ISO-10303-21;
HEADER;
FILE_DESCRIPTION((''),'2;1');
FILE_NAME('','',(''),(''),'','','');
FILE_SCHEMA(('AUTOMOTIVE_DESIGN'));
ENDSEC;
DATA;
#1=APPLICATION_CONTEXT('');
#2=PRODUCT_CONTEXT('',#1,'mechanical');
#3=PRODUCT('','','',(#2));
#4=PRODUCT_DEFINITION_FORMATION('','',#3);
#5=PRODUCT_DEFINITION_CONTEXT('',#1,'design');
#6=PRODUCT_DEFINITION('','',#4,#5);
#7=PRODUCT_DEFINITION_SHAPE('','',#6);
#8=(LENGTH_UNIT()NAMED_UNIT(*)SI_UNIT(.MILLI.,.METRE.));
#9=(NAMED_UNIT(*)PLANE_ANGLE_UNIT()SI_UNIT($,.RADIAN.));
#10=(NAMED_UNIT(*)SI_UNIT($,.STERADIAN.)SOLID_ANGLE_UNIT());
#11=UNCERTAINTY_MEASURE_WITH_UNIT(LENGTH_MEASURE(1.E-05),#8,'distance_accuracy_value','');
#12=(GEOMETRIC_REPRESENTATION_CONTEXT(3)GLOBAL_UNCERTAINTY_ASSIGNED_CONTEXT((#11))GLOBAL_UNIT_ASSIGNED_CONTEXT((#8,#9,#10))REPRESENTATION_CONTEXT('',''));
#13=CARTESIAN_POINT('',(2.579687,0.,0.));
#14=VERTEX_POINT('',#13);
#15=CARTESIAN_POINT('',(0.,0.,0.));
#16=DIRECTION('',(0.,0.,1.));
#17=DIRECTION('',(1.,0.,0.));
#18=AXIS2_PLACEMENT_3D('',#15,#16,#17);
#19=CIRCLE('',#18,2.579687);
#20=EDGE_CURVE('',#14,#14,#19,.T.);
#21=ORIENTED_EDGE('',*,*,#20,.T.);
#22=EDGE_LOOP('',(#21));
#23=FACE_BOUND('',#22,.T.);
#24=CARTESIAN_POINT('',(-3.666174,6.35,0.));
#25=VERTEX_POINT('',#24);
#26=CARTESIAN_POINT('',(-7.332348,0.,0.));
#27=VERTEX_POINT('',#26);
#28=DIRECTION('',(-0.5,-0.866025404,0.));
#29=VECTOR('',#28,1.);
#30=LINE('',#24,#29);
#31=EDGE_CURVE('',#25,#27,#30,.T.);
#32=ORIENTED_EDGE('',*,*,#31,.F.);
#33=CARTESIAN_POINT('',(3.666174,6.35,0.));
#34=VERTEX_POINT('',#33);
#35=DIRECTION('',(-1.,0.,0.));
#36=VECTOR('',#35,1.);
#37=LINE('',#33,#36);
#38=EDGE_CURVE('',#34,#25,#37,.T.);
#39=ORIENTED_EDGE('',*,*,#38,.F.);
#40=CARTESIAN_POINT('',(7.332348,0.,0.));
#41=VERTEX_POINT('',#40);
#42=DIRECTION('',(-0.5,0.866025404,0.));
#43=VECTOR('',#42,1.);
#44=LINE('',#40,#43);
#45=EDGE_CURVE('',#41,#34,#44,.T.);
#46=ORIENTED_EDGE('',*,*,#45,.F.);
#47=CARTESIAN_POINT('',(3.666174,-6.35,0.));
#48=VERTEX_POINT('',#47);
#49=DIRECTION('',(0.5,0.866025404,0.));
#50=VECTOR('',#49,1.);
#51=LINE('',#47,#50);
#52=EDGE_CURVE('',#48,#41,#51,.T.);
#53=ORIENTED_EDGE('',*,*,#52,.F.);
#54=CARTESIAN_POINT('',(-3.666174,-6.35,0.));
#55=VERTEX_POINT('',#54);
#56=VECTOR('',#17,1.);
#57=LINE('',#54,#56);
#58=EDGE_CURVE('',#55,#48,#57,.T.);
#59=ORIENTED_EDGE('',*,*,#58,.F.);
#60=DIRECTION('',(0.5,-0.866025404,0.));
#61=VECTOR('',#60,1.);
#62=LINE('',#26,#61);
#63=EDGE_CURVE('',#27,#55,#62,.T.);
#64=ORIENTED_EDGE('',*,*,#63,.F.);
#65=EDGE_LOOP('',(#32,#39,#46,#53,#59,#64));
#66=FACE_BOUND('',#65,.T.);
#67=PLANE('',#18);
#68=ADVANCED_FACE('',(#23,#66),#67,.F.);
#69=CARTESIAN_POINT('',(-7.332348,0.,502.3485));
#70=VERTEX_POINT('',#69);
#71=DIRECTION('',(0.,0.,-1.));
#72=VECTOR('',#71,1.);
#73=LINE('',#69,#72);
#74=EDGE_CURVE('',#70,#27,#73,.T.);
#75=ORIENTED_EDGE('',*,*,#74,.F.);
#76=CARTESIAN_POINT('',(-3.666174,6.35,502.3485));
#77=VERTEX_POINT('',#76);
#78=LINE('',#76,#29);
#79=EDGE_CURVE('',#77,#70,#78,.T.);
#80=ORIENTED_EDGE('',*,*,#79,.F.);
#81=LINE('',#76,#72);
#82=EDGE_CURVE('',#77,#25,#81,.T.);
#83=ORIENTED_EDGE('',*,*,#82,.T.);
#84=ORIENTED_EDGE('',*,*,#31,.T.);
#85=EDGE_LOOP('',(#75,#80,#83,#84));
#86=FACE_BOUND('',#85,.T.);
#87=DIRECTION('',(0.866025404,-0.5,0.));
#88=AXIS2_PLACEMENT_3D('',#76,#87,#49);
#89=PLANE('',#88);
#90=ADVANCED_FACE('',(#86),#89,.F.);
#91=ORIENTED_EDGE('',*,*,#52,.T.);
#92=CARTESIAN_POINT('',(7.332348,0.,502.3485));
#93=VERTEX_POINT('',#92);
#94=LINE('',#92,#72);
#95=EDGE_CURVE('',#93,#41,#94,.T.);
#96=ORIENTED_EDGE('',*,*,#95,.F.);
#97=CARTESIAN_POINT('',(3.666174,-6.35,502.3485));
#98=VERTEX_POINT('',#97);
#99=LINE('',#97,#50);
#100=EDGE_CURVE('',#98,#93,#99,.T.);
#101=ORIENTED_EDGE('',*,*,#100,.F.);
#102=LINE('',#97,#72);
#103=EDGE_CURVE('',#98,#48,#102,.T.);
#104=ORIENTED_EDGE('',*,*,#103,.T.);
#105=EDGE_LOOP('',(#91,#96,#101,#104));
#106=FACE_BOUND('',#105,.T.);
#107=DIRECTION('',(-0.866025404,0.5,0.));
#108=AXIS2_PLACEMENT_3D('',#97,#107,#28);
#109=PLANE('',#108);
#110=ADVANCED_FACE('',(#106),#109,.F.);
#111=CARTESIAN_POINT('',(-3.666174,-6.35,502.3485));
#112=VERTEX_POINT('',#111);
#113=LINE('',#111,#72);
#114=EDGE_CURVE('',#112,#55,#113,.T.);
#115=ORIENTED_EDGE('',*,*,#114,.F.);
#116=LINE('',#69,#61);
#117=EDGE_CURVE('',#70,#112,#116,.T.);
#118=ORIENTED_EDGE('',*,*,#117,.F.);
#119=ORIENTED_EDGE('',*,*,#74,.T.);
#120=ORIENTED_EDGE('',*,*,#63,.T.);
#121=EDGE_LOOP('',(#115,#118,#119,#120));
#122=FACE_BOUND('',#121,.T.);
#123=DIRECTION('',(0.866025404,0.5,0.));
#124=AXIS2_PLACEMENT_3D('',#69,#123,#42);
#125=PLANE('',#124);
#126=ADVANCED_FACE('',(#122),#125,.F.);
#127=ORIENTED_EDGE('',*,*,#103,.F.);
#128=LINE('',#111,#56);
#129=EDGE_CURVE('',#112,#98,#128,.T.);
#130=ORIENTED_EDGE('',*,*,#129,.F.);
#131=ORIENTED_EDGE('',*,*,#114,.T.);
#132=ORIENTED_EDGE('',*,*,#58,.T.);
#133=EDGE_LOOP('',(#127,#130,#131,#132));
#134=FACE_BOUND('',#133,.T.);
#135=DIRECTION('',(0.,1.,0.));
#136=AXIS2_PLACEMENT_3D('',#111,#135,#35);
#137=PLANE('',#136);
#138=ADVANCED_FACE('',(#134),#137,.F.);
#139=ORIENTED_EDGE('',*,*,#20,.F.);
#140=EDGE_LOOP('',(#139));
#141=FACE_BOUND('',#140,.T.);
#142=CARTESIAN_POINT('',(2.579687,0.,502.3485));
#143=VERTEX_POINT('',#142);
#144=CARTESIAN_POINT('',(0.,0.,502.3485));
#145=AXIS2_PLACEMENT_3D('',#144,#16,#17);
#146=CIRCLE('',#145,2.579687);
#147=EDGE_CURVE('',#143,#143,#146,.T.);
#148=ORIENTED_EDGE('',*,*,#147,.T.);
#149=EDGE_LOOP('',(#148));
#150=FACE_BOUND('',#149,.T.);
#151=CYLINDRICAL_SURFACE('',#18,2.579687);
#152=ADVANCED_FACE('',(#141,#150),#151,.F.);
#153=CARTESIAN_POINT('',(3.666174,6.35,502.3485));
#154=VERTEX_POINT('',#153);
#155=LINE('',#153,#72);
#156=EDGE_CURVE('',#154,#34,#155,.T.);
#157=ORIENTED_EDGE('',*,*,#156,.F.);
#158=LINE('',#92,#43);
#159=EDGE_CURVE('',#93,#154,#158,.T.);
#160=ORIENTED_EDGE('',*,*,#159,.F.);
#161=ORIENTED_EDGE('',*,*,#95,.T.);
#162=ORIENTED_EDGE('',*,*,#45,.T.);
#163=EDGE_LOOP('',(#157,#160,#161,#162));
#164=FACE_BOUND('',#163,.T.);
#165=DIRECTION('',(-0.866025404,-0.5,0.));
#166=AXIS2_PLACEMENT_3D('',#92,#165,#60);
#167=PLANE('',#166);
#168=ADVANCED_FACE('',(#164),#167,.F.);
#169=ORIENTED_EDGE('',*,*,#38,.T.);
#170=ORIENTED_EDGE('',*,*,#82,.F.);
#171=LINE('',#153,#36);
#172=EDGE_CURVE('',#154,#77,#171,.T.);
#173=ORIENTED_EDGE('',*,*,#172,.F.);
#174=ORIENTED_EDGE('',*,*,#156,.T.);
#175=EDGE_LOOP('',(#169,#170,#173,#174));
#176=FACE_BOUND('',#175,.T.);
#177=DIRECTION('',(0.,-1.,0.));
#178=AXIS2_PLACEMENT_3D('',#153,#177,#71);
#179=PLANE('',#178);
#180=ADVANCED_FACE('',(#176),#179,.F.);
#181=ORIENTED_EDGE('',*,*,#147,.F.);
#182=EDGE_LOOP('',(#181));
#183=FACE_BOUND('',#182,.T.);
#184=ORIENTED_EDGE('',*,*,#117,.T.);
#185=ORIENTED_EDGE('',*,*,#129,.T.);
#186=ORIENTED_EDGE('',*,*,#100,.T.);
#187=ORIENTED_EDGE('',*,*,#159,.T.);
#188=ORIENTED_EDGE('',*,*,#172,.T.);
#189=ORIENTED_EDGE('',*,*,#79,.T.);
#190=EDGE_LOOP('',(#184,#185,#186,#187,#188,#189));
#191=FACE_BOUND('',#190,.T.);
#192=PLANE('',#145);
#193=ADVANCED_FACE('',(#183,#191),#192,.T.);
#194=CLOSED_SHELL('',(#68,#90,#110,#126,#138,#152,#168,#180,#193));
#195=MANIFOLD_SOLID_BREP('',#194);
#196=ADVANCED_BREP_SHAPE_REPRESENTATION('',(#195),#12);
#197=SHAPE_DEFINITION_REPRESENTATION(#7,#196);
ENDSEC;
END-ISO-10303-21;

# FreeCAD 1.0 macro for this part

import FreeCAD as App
import Part
import Sketcher
Q = App.Units.Quantity


def add_polygon(sketch, points):
    """Adds a closed chain of lines whose ends are joined by coincident constraints."""
    first, n = sketch.GeometryCount, len(points)
    for a, b in zip(points, points[1:] + points[:1]):
        sketch.addGeometry(Part.LineSegment(App.Vector(*a, 0), App.Vector(*b, 0)), False)
    for i in range(n):
        sketch.addConstraint(Sketcher.Constraint("Coincident", first + i, 2, first + (i + 1) % n, 1))

doc = App.newDocument("Part")
body = doc.addObject("PartDesign::Body", "Body")

# Sketch on XY plane
sketch1 = body.newObject("Sketcher::SketchObject", "Sketch")
sketch1.AttachmentSupport = (doc.getObject("XY_Plane"), [""])
sketch1.MapMode = "FlatFace"
add_polygon(sketch1, [(7, 0), (4, 6), (-4, 6), (-7, 0), (-4, -6), (4, -6)])  # lines 0-5
sketch1.addConstraint([
    Sketcher.Constraint("Horizontal", 1),
    Sketcher.Constraint("Horizontal", 4),
    Sketcher.Constraint("Symmetric", 0, 2, 3, 2, -1, 1),
    Sketcher.Constraint("Symmetric", 2, 2, 5, 2, -1, 1),
    Sketcher.Constraint("PointOnObject", 2, 2, -1),
    Sketcher.Constraint("Parallel", 2, 5),
    Sketcher.Constraint("Vertical", 1, 2, 3, 2),
    Sketcher.Constraint("Angle", 0, Q("120 deg")),
    Sketcher.Constraint("DistanceY", 3, 2, 1, 2, Q("0.5 in")),
    Sketcher.Constraint("DistanceX", 1, 2, 1, 1, 7.332348),
])
pad1 = body.newObject("PartDesign::Pad", "Pad")
pad1.Profile = sketch1
pad1.Length = Q("19.7775 in")

# Sketch on XY plane
sketch2 = body.newObject("Sketcher::SketchObject", "Sketch001")
sketch2.AttachmentSupport = (doc.getObject("XY_Plane"), [""])
sketch2.MapMode = "FlatFace"
sketch2.AttachmentOffset = App.Placement(App.Vector(0, 0, 19.7775 * 25.4), App.Rotation())
sketch2.addGeometry(Part.Circle(App.Vector(0, 0, 0), App.Vector(0, 0, 1), 2.6), False)
sketch2.addConstraint([
    Sketcher.Constraint("Coincident", 0, 3, -1, 1),
    Sketcher.Constraint("Diameter", 0, Q("0.203125 in")),
])
pocket1 = body.newObject("PartDesign::Pocket", "Pocket")
pocket1.Profile = sketch2
pocket1.Type = "ThroughAll"

doc.recompute()
